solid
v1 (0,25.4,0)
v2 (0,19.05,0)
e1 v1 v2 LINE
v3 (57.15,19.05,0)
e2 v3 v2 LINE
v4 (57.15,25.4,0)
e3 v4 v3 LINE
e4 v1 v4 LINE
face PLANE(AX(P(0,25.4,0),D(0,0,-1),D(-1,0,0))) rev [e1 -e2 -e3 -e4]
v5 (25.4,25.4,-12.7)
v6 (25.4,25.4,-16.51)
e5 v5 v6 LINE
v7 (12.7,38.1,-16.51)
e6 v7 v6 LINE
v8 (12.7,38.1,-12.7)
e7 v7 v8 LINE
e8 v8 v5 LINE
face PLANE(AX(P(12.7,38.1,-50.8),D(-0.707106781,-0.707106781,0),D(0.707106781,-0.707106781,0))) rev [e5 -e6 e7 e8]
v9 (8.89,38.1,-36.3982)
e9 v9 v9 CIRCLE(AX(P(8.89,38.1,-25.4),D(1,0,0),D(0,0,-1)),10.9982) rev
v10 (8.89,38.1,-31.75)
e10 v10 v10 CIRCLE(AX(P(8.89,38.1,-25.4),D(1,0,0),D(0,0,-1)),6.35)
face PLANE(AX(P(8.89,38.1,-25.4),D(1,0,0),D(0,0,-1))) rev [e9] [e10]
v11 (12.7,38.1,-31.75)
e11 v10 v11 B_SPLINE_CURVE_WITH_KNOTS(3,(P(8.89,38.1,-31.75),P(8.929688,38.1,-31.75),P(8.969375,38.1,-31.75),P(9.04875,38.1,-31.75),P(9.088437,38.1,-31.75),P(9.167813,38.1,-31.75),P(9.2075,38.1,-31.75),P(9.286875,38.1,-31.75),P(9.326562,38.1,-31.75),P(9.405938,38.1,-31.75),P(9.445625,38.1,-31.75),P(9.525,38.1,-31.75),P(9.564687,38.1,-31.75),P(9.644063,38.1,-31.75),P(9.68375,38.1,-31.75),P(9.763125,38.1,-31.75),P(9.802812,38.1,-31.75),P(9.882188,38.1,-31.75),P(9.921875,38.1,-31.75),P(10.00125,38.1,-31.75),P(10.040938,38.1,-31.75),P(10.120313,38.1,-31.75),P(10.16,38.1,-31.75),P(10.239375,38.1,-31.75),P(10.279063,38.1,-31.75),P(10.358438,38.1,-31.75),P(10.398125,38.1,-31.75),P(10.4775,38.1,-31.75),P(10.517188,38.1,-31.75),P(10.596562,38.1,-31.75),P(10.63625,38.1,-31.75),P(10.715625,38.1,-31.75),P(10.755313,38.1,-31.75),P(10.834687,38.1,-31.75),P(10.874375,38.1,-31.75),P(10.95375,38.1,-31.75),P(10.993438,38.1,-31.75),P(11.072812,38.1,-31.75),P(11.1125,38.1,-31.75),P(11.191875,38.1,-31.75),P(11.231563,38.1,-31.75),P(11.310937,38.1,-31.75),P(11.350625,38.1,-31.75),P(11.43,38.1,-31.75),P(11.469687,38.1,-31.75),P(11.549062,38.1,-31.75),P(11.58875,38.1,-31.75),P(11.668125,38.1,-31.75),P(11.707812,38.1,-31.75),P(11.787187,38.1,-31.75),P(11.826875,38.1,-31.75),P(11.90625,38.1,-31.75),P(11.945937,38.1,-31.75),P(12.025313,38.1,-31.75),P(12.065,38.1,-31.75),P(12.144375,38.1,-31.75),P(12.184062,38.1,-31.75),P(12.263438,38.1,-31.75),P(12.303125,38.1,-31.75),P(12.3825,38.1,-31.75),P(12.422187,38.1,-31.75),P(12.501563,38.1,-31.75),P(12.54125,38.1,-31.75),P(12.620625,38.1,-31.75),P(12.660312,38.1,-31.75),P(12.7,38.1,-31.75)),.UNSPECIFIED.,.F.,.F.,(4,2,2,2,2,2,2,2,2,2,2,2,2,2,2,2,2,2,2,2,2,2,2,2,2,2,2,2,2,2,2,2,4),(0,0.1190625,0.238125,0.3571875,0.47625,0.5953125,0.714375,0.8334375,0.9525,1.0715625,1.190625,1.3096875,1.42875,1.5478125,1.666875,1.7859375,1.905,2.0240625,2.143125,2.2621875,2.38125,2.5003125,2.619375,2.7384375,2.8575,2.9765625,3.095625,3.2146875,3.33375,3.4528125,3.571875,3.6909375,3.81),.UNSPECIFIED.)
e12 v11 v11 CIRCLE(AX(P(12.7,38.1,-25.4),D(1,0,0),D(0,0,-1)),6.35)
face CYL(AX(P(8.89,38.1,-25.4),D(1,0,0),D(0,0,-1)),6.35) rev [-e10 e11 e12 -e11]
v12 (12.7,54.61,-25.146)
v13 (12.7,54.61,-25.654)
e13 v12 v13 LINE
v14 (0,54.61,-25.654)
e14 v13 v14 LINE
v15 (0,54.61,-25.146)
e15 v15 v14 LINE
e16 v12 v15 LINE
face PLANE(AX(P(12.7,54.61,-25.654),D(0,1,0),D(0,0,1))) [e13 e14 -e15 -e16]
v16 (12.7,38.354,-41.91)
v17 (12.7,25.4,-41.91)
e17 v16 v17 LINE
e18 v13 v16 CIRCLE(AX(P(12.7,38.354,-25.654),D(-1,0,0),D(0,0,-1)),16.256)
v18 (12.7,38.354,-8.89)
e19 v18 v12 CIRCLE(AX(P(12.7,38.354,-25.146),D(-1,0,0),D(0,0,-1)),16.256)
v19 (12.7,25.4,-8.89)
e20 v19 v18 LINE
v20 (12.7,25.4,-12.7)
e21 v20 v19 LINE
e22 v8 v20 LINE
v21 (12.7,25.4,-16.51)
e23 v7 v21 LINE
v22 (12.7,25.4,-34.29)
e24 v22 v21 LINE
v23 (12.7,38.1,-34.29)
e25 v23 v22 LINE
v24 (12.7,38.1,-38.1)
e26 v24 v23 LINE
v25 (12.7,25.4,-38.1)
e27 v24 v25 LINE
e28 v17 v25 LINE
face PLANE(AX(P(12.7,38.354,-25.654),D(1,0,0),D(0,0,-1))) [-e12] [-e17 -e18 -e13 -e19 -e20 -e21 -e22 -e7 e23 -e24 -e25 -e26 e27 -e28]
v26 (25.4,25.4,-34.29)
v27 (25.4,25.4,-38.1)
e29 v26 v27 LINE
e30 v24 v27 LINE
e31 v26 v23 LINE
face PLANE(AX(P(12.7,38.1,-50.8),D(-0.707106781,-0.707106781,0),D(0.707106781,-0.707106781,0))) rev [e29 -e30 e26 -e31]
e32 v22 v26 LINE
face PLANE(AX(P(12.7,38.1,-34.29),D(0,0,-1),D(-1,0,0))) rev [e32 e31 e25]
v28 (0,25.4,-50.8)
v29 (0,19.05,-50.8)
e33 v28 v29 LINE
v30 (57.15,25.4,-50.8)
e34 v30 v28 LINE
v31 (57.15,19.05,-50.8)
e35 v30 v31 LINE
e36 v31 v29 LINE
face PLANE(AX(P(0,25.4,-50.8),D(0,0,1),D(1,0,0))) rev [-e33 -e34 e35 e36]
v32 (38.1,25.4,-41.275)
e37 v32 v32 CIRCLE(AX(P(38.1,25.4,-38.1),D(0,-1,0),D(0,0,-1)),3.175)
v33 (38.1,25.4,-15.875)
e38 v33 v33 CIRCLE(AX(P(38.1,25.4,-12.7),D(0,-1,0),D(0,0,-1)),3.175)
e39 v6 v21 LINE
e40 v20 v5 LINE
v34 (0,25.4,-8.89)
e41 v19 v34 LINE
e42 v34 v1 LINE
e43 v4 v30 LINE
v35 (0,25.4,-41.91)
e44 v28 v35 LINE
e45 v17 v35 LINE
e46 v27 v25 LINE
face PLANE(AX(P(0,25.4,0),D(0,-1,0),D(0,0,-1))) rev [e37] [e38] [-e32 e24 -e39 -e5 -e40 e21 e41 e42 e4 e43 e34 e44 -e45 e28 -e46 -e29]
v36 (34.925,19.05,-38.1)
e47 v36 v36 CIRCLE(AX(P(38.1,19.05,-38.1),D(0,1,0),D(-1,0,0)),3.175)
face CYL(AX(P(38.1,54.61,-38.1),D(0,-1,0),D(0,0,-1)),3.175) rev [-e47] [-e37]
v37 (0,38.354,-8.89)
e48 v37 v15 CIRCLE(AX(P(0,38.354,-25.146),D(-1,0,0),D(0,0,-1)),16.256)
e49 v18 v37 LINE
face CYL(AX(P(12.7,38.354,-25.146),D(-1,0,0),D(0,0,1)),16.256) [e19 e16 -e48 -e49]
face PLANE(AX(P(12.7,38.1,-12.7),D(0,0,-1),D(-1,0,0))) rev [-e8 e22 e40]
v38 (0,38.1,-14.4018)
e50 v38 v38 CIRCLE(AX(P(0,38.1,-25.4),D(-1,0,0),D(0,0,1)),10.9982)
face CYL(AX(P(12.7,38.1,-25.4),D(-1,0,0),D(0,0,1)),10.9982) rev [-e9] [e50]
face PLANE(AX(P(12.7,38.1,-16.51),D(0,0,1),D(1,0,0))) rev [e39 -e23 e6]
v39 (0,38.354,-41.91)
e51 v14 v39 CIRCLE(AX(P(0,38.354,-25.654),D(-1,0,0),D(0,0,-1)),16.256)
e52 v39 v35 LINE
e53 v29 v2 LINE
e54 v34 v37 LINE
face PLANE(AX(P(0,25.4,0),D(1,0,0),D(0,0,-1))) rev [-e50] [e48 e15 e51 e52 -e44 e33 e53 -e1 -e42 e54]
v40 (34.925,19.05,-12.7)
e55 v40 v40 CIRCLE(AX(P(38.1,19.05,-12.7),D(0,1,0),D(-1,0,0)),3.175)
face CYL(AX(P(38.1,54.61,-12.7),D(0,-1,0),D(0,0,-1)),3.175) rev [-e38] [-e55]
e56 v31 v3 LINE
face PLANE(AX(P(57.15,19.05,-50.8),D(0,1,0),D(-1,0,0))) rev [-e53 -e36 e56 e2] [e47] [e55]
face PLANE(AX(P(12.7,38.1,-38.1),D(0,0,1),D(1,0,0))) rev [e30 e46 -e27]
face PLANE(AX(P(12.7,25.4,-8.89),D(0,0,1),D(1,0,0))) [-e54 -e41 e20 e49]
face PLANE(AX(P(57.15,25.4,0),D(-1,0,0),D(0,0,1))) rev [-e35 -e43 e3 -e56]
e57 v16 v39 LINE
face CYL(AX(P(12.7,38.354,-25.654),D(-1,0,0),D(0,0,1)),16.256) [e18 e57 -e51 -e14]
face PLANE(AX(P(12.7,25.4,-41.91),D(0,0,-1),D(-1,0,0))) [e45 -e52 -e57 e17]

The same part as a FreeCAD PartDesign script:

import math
import FreeCAD as App
import Part
import Sketcher
from FreeCAD import Vector
Q = App.Units.Quantity


def add_polygon(sketch, points):
    """Adds a closed chain of lines whose ends are joined by coincident constraints."""
    first, n = sketch.GeometryCount, len(points)
    for a, b in zip(points, points[1:] + points[:1]):
        sketch.addGeometry(Part.LineSegment(App.Vector(*a, 0), App.Vector(*b, 0)), False)
    for i in range(n):
        sketch.addConstraint(Sketcher.Constraint("Coincident", first + i, 2, first + (i + 1) % n, 1))

doc = App.newDocument("Part")
params = doc.addObject("Spreadsheet::Sheet", "Params")
for row, (alias, value) in enumerate([
    ("sketch1_height", "2 in"),
    ("sketch1_width", "2.25 in"),
    ("pad1_length", "1 in"),
    ("sketch2_width", "2 in"),
    ("sketch2_height", "0.5 in"),
    ("sketch3_radius", "0.64 in"),
    ("sketch3_diameter", "0.866 in"),
    ("sketch3_height", "1.3 in"),
    ("sketch3_width", "0.51 in"),
    ("pad2_length", "0.5 in"),
    ("sketch4_diameter", "0.5 in"),
    ("sketch4_diameter2", "0.866 in"),
    ("pad3_length", "0.15 in"),
    ("sketch5_diameter", "0.25 in"),
    ("sketch6_width", "0.5 in"),
    ("sketch6_height", "0.15 in"),
    ("pad4_length", "0.5 in"),
    ("sketch7_width", "0.5 in"),
    ("sketch8_width", "2 in"),
    ("sketch8_height", "0.5 in"),
    ("sketch8_width2", "0.25 in"),
], start=1):
    params.set(f"A{row}", alias)
    params.set(f"B{row}", "=" + value)
    params.setAlias(f"B{row}", alias)

body = doc.addObject("PartDesign::Body", "Body")

sketch1 = body.newObject("Sketcher::SketchObject", "Sketch")
sketch1.AttachmentSupport = (doc.getObject("XZ_Plane"), [""])
sketch1.MapMode = "FlatFace"
add_polygon(sketch1, [(0, -50.8), (0, 0), (57.15, 0), (57.15, -50.8)])
sketch1.addConstraint(Sketcher.Constraint("Vertical", 0))
sketch1.addConstraint(Sketcher.Constraint("Horizontal", 1))
sketch1.addConstraint(Sketcher.Constraint("Vertical", 2))
sketch1.addConstraint(Sketcher.Constraint("Horizontal", 3))
sketch1.addConstraint(Sketcher.Constraint("Coincident", 0, 2, -1, 1))
sketch1.addConstraint(Sketcher.Constraint("DistanceY", 0, 1, 0, 2, Q("2 in")))
sketch1.addConstraint(Sketcher.Constraint("DistanceX", 1, 1, 1, 2, Q("2.25 in")))
sketch1.setExpression("Constraints[9]", "Params.sketch1_height")
sketch1.setExpression("Constraints[10]", "Params.sketch1_width")
pad1 = body.newObject("PartDesign::Pad", "Pad")
pad1.Profile = sketch1
pad1.setExpression("Length", "Params.pad1_length")
pad1.Reversed = True

sketch2 = body.newObject("Sketcher::SketchObject", "Sketch001")
sketch2.AttachmentSupport = (doc.getObject("XY_Plane"), [""])
sketch2.MapMode = "FlatFace"
add_polygon(sketch2, [(6.35, 19.05), (6.35, 6.35), (57.15, 6.35), (57.15, 19.05)])
sketch2.addConstraint(Sketcher.Constraint("Vertical", 0))
sketch2.addConstraint(Sketcher.Constraint("Horizontal", 1))
sketch2.addConstraint(Sketcher.Constraint("Vertical", 2))
sketch2.addConstraint(Sketcher.Constraint("Horizontal", 3))
sketch2.addConstraint(Sketcher.Constraint("DistanceX", 1, 1, 1, 2, Q("2 in")))
sketch2.addConstraint(Sketcher.Constraint("DistanceY", 0, 2, 0, 1, Q("0.5 in")))
sketch2.addConstraint(Sketcher.Constraint("DistanceX", -1, 1, 0, 2, Q("0.25 in")))
sketch2.addConstraint(Sketcher.Constraint("DistanceY", -1, 1, 0, 2, Q("0.25 in")))
sketch2.setExpression("Constraints[8]", "Params.sketch2_width")
sketch2.setExpression("Constraints[9]", "Params.sketch2_height")
pocket1 = body.newObject("PartDesign::Pocket", "Pocket")
pocket1.Profile = sketch2
pocket1.Type = "ThroughAll"

sketch3 = body.newObject("Sketcher::SketchObject", "Sketch002")
sketch3.AttachmentSupport = (doc.getObject("YZ_Plane"), [""])
sketch3.MapMode = "FlatFace"
sketch3.addGeometry(Part.LineSegment(Vector(25.4, -41.91, 0), Vector(25.4, -8.89, 0)), False)
sketch3.addGeometry(Part.LineSegment(Vector(25.4, -8.89, 0), Vector(38.354, -8.89, 0)), False)
sketch3.addGeometry(Part.ArcOfCircle(Part.Circle(Vector(38.354, -25.146, 0), Vector(0, 0, 1), 16.256), math.radians(0), math.radians(90)), False)
sketch3.addGeometry(Part.LineSegment(Vector(54.61, -25.146, 0), Vector(54.61, -25.654, 0)), False)
sketch3.addGeometry(Part.ArcOfCircle(Part.Circle(Vector(38.354, -25.654, 0), Vector(0, 0, 1), 16.256), math.radians(-90), math.radians(0)), False)
sketch3.addGeometry(Part.LineSegment(Vector(38.354, -41.91, 0), Vector(25.4, -41.91, 0)), False)
sketch3.addGeometry(Part.Circle(Vector(38.1, -25.4, 0), Vector(0, 0, 1), 10.9982), False)
sketch3.addConstraint(Sketcher.Constraint("Coincident", 0, 2, 1, 1))
sketch3.addConstraint(Sketcher.Constraint("Tangent", 1, 2, 2, 2))
sketch3.addConstraint(Sketcher.Constraint("Tangent", 2, 1, 3, 1))
sketch3.addConstraint(Sketcher.Constraint("Tangent", 3, 2, 4, 2))
sketch3.addConstraint(Sketcher.Constraint("Tangent", 4, 1, 5, 1))
sketch3.addConstraint(Sketcher.Constraint("Coincident", 5, 2, 0, 1))
sketch3.addConstraint(Sketcher.Constraint("Vertical", 0))
sketch3.addConstraint(Sketcher.Constraint("Horizontal", 1))
sketch3.addConstraint(Sketcher.Constraint("Vertical", 3))
sketch3.addConstraint(Sketcher.Constraint("Horizontal", 5))
sketch3.addConstraint(Sketcher.Constraint("Equal", 2, 4))
sketch3.addConstraint(Sketcher.Constraint("Radius", 2, Q("0.64 in")))
sketch3.addConstraint(Sketcher.Constraint("Diameter", 6, Q("0.866 in")))
sketch3.addConstraint(Sketcher.Constraint("DistanceY", 0, 1, 0, 2, Q("1.3 in")))
sketch3.addConstraint(Sketcher.Constraint("DistanceY", 6, 3, -1, 1, Q("1 in")))
sketch3.addConstraint(Sketcher.Constraint("DistanceX", -1, 1, 0, 2, Q("1 in")))
sketch3.addConstraint(Sketcher.Constraint("DistanceX", 1, 1, 1, 2, Q("0.51 in")))
sketch3.addConstraint(Sketcher.Constraint("DistanceX", -1, 1, 6, 3, Q("1.5 in")))
sketch3.addConstraint(Sketcher.Constraint("DistanceY", 2, 3, -1, 1, Q("0.99 in")))
sketch3.setExpression("Constraints[11]", "Params.sketch3_radius")
sketch3.setExpression("Constraints[12]", "Params.sketch3_diameter")
sketch3.setExpression("Constraints[13]", "Params.sketch3_height")
sketch3.setExpression("Constraints[16]", "Params.sketch3_width")
pad2 = body.newObject("PartDesign::Pad", "Pad001")
pad2.Profile = sketch3
pad2.setExpression("Length", "Params.pad2_length")

sketch4 = body.newObject("Sketcher::SketchObject", "Sketch003")
sketch4.AttachmentSupport = (doc.getObject("YZ_Plane"), [""])
sketch4.MapMode = "FlatFace"
sketch4.AttachmentOffset = App.Placement(Vector(0, 0, 0.35 * 25.4), App.Rotation())
sketch4.addGeometry(Part.Circle(Vector(38.1, -25.4, 0), Vector(0, 0, 1), 10.9982), False)
sketch4.addGeometry(Part.Circle(Vector(38.1, -25.4, 0), Vector(0, 0, 1), 6.35), False)
sketch4.addConstraint(Sketcher.Constraint("Coincident", 1, 3, 0, 3))
sketch4.addConstraint(Sketcher.Constraint("Diameter", 1, Q("0.5 in")))
sketch4.addConstraint(Sketcher.Constraint("Diameter", 0, Q("0.866 in")))
sketch4.addConstraint(Sketcher.Constraint("DistanceY", 0, 3, -1, 1, Q("1 in")))
sketch4.addConstraint(Sketcher.Constraint("DistanceX", -1, 1, 0, 3, Q("1.5 in")))
sketch4.setExpression("Constraints[1]", "Params.sketch4_diameter")
sketch4.setExpression("Constraints[2]", "Params.sketch4_diameter2")
pad3 = body.newObject("PartDesign::Pad", "Pad002")
pad3.Profile = sketch4
pad3.setExpression("Length", "Params.pad3_length")

sketch5 = body.newObject("Sketcher::SketchObject", "Sketch004")
sketch5.AttachmentSupport = (doc.getObject("XZ_Plane"), [""])
sketch5.MapMode = "FlatFace"
sketch5.addGeometry(Part.Circle(Vector(38.1, -38.1, 0), Vector(0, 0, 1), 3.175), False)
sketch5.addGeometry(Part.Circle(Vector(38.1, -12.7, 0), Vector(0, 0, 1), 3.175), False)
sketch5.addConstraint(Sketcher.Constraint("Equal", 0, 1))
sketch5.addConstraint(Sketcher.Constraint("Vertical", 0, 3, 1, 3))
sketch5.addConstraint(Sketcher.Constraint("Diameter", 0, Q("0.25 in")))
sketch5.addConstraint(Sketcher.Constraint("DistanceY", 0, 3, 1, 3, Q("1 in")))
sketch5.addConstraint(Sketcher.Constraint("DistanceX", -1, 1, 0, 3, Q("1.5 in")))
sketch5.addConstraint(Sketcher.Constraint("DistanceY", 0, 3, -1, 1, Q("1.5 in")))
sketch5.setExpression("Constraints[2]", "Params.sketch5_diameter")
pocket2 = body.newObject("PartDesign::Pocket", "Pocket001")
pocket2.Profile = sketch5
pocket2.Type = "ThroughAll"

sketch6 = body.newObject("Sketcher::SketchObject", "Sketch005")
sketch6.AttachmentSupport = (doc.getObject("XZ_Plane"), [""])
sketch6.MapMode = "FlatFace"
sketch6.AttachmentOffset = App.Placement(Vector(0, 0, -1 * 25.4), App.Rotation())
add_polygon(sketch6, [(12.7, -16.51), (12.7, -12.7), (25.4, -12.7), (25.4, -16.51)])
add_polygon(sketch6, [(12.7, -38.1), (12.7, -34.29), (25.4, -34.29), (25.4, -38.1)])
sketch6.addConstraint(Sketcher.Constraint("Vertical", 0))
sketch6.addConstraint(Sketcher.Constraint("Horizontal", 1))
sketch6.addConstraint(Sketcher.Constraint("Vertical", 2))
sketch6.addConstraint(Sketcher.Constraint("Horizontal", 3))
sketch6.addConstraint(Sketcher.Constraint("Vertical", 4))
sketch6.addConstraint(Sketcher.Constraint("Horizontal", 5))
sketch6.addConstraint(Sketcher.Constraint("Vertical", 6))
sketch6.addConstraint(Sketcher.Constraint("Horizontal", 7))
sketch6.addConstraint(Sketcher.Constraint("Vertical", 3, 2, 4, 2))
sketch6.addConstraint(Sketcher.Constraint("Vertical", 2, 2, 5, 2))
sketch6.addConstraint(Sketcher.Constraint("Equal", 2, 4))
sketch6.addConstraint(Sketcher.Constraint("DistanceX", 1, 1, 1, 2, Q("0.5 in")))
sketch6.addConstraint(Sketcher.Constraint("DistanceX", -1, 1, 1, 2, Q("1 in")))
sketch6.addConstraint(Sketcher.Constraint("DistanceY", 6, 2, 1, 2, Q("1 in")))
sketch6.addConstraint(Sketcher.Constraint("DistanceY", 0, 1, 0, 2, Q("0.15 in")))
sketch6.addConstraint(Sketcher.Constraint("DistanceY", 0, 2, -1, 1, Q("0.5 in")))
sketch6.setExpression("Constraints[19]", "Params.sketch6_width")
sketch6.setExpression("Constraints[22]", "Params.sketch6_height")
pad4 = body.newObject("PartDesign::Pad", "Pad003")
pad4.Profile = sketch6
pad4.setExpression("Length", "Params.pad4_length")
pad4.Reversed = True

sketch7 = body.newObject("Sketcher::SketchObject", "Sketch006")
sketch7.AttachmentSupport = (doc.getObject("XY_Plane"), [""])
sketch7.MapMode = "FlatFace"
sketch7.AttachmentOffset = App.Placement(Vector(0, 0, -0.5 * 25.4), App.Rotation())
add_polygon(sketch7, [(25.4, 25.4), (25.4, 38.1), (12.7, 38.1)])
sketch7.addConstraint(Sketcher.Constraint("Vertical", 0))
sketch7.addConstraint(Sketcher.Constraint("Horizontal", 1))
sketch7.addConstraint(Sketcher.Constraint("Equal", 1, 0))
sketch7.addConstraint(Sketcher.Constraint("DistanceX", 1, 2, 1, 1, Q("0.5 in")))
sketch7.addConstraint(Sketcher.Constraint("DistanceX", -1, 1, 0, 2, Q("1 in")))
sketch7.addConstraint(Sketcher.Constraint("DistanceY", -1, 1, 2, 2, Q("1 in")))
sketch7.setExpression("Constraints[6]", "Params.sketch7_width")
pocket3 = body.newObject("PartDesign::Pocket", "Pocket002")
pocket3.Profile = sketch7
pocket3.Type = "ThroughAll"

sketch8 = body.newObject("Sketcher::SketchObject", "Sketch007")
sketch8.AttachmentSupport = (doc.getObject("XY_Plane"), [""])
sketch8.MapMode = "FlatFace"
add_polygon(sketch8, [(6.35, 6.35), (6.35, 19.05), (0, 19.05), (0, 0), (57.15, 0), (57.15, 6.35)])
sketch8.addConstraint(Sketcher.Constraint("Vertical", 0))
sketch8.addConstraint(Sketcher.Constraint("Horizontal", 1))
sketch8.addConstraint(Sketcher.Constraint("Vertical", 2))
sketch8.addConstraint(Sketcher.Constraint("Horizontal", 3))
sketch8.addConstraint(Sketcher.Constraint("Vertical", 4))
sketch8.addConstraint(Sketcher.Constraint("Horizontal", 5))
sketch8.addConstraint(Sketcher.Constraint("Coincident", 2, 2, -1, 1))
sketch8.addConstraint(Sketcher.Constraint("Equal", 1, 4))
sketch8.addConstraint(Sketcher.Constraint("DistanceX", 5, 2, 5, 1, Q("2 in")))
sketch8.addConstraint(Sketcher.Constraint("DistanceY", 0, 1, 0, 2, Q("0.5 in")))
sketch8.addConstraint(Sketcher.Constraint("DistanceX", 1, 2, 1, 1, Q("0.25 in")))
sketch8.setExpression("Constraints[14]", "Params.sketch8_width")
sketch8.setExpression("Constraints[15]", "Params.sketch8_height")
sketch8.setExpression("Constraints[16]", "Params.sketch8_width2")
pocket4 = body.newObject("PartDesign::Pocket", "Pocket003")
pocket4.Profile = sketch8
pocket4.Type = "ThroughAll"

doc.recompute()
